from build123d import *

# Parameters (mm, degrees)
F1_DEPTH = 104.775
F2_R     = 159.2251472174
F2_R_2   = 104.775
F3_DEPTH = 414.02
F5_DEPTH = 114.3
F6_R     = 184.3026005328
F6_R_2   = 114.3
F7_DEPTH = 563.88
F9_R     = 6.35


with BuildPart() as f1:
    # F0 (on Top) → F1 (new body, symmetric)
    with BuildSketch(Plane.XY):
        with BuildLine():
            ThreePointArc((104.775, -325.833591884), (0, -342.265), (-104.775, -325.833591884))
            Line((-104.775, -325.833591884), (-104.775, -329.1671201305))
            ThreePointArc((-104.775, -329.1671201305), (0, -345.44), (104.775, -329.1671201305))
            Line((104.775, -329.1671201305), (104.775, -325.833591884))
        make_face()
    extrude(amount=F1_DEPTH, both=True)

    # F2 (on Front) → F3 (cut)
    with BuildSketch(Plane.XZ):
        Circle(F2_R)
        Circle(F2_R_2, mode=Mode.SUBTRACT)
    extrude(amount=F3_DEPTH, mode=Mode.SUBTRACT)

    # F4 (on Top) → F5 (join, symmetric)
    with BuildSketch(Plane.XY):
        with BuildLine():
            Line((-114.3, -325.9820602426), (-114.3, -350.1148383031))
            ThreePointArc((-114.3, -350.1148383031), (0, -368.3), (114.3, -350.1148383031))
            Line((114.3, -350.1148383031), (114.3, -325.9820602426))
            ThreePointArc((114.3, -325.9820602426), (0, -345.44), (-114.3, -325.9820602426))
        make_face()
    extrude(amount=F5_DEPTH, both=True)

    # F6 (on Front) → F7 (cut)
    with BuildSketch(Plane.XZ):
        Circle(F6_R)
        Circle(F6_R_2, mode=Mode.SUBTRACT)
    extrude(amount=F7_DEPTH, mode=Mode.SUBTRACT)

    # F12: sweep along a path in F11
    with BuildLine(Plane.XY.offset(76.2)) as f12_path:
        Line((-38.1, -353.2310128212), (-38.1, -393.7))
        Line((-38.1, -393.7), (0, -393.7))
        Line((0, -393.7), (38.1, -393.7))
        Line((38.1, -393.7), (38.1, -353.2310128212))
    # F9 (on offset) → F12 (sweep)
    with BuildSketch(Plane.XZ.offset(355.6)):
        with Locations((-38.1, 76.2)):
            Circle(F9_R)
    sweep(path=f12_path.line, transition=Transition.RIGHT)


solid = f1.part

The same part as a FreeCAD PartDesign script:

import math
import FreeCAD as App
import Part
import Sketcher
Q = App.Units.Quantity

doc = App.newDocument("Part")
body = doc.addObject("PartDesign::Body", "Body")

# Sketch on XY plane
sketch1 = body.newObject("Sketcher::SketchObject", "Sketch")
sketch1.AttachmentSupport = (doc.getObject("XY_Plane"), [""])
sketch1.MapMode = "FlatFace"
sketch1.addGeometry([
    Part.ArcOfCircle(Part.Circle(App.Vector(0, 0, 0), App.Vector(0, 0, 1), 342.3), math.radians(-108), math.radians(-72)),
    Part.LineSegment(App.Vector(-104.8, -325.8, 0), App.Vector(-104.8, -329.2, 0)),
    Part.ArcOfCircle(Part.Circle(App.Vector(0, 0, 0), App.Vector(0, 0, 1), 345.4), math.radians(-108), math.radians(-72)),
    Part.LineSegment(App.Vector(104.8, -329.2, 0), App.Vector(104.8, -325.8, 0)),
], False)
sketch1.addConstraint([
    Sketcher.Constraint("Coincident", 0, 1, 1, 1),
    Sketcher.Constraint("Coincident", 1, 2, 2, 1),
    Sketcher.Constraint("Coincident", 2, 2, 3, 1),
    Sketcher.Constraint("Coincident", 3, 2, 0, 2),
    Sketcher.Constraint("Vertical", 1),
    Sketcher.Constraint("Vertical", 3),
    Sketcher.Constraint("Coincident", 0, 3, -1, 1),
    Sketcher.Constraint("Coincident", 2, 3, -1, 1),
    Sketcher.Constraint("Horizontal", 1, 2, 2, 2),
    Sketcher.Constraint("Radius", 2, Q("13.6 in")),
    Sketcher.Constraint("Radius", 0, Q("13.475 in")),
    Sketcher.Constraint("DistanceX", 1, 2, 2, 2, Q("8.25 in")),
])
pad1 = body.newObject("PartDesign::Pad", "Pad")
pad1.Profile = sketch1
pad1.Length = Q("8.25 in")
pad1.Midplane = True

# Sketch on XZ plane
sketch2 = body.newObject("Sketcher::SketchObject", "Sketch001")
sketch2.AttachmentSupport = (doc.getObject("XZ_Plane"), [""])
sketch2.MapMode = "FlatFace"
sketch2.addGeometry([
    Part.Circle(App.Vector(0, 0, 0), App.Vector(0, 0, 1), 159),
    Part.Circle(App.Vector(0, 0, 0), App.Vector(0, 0, 1), 105),
], False)
sketch2.addConstraint([
    Sketcher.Constraint("Coincident", 0, 3, -1, 1),
    Sketcher.Constraint("Coincident", 1, 3, -1, 1),
    Sketcher.Constraint("Diameter", 1, Q("8.25 in")),
    Sketcher.Constraint("Diameter", 0, 318.450294),
])
pocket1 = body.newObject("PartDesign::Pocket", "Pocket")
pocket1.Profile = sketch2
pocket1.Length = Q("16.3 in")
pocket1.Reversed = True

# Sketch on XY plane
sketch3 = body.newObject("Sketcher::SketchObject", "Sketch002")
sketch3.AttachmentSupport = (doc.getObject("XY_Plane"), [""])
sketch3.MapMode = "FlatFace"
sketch3.addGeometry([
    Part.LineSegment(App.Vector(-114, -326, 0), App.Vector(-114, -350, 0)),
    Part.ArcOfCircle(Part.Circle(App.Vector(0, 0, 0), App.Vector(0, 0, 1), 368), math.radians(-108), math.radians(-72)),
    Part.LineSegment(App.Vector(114, -350, 0), App.Vector(114, -326, 0)),
    Part.ArcOfCircle(Part.Circle(App.Vector(0, 0, 0), App.Vector(0, 0, 1), 345), math.radians(-109), math.radians(-71)),
], False)
sketch3.addConstraint([
    Sketcher.Constraint("Coincident", 0, 2, 1, 1),
    Sketcher.Constraint("Coincident", 1, 2, 2, 1),
    Sketcher.Constraint("Coincident", 2, 2, 3, 2),
    Sketcher.Constraint("Coincident", 3, 1, 0, 1),
    Sketcher.Constraint("Vertical", 0),
    Sketcher.Constraint("Vertical", 2),
    Sketcher.Constraint("Coincident", 1, 3, -1, 1),
    Sketcher.Constraint("Coincident", 3, 3, -1, 1),
    Sketcher.Constraint("Horizontal", 0, 2, 1, 2),
    Sketcher.Constraint("Radius", 1, Q("14.5 in")),
    Sketcher.Constraint("Radius", 3, Q("13.6 in")),
    Sketcher.Constraint("DistanceX", 0, 2, 1, 2, Q("9 in")),
])
pad2 = body.newObject("PartDesign::Pad", "Pad001")
pad2.Profile = sketch3
pad2.Length = Q("9 in")
pad2.Midplane = True

# Sketch on XZ plane
sketch4 = body.newObject("Sketcher::SketchObject", "Sketch003")
sketch4.AttachmentSupport = (doc.getObject("XZ_Plane"), [""])
sketch4.MapMode = "FlatFace"
sketch4.addGeometry([
    Part.Circle(App.Vector(0, 0, 0), App.Vector(0, 0, 1), 184),
    Part.Circle(App.Vector(0, 0, 0), App.Vector(0, 0, 1), 114),
], False)
sketch4.addConstraint([
    Sketcher.Constraint("Coincident", 0, 3, -1, 1),
    Sketcher.Constraint("Coincident", 1, 3, -1, 1),
    Sketcher.Constraint("Diameter", 1, Q("9 in")),
    Sketcher.Constraint("Diameter", 0, 368.605201),
])
pocket2 = body.newObject("PartDesign::Pocket", "Pocket001")
pocket2.Profile = sketch4
pocket2.Length = Q("22.2 in")
pocket2.Reversed = True

# Sketch on XZ plane
sketch5 = body.newObject("Sketcher::SketchObject", "Sketch004")
sketch5.AttachmentSupport = (doc.getObject("XZ_Plane"), [""])
sketch5.MapMode = "FlatFace"
sketch5.AttachmentOffset = App.Placement(App.Vector(0, 0, 14 * 25.4), App.Rotation())
sketch5.addGeometry(Part.Circle(App.Vector(-38, 76, 0), App.Vector(0, 0, 1), 6), False)
sketch5.addConstraint([
    Sketcher.Constraint("Diameter", 0, Q("0.5 in")),
    Sketcher.Constraint("DistanceY", -1, 1, 0, 3, Q("3 in")),
    Sketcher.Constraint("DistanceX", 0, 3, -1, 1, Q("1.5 in")),
])

# Sketch on XY plane
sketch6 = body.newObject("Sketcher::SketchObject", "Sketch005")
sketch6.AttachmentSupport = (doc.getObject("XY_Plane"), [""])
sketch6.MapMode = "FlatFace"
sketch6.AttachmentOffset = App.Placement(App.Vector(0, 0, 3 * 25.4), App.Rotation())
sketch6.addGeometry([
    Part.LineSegment(App.Vector(-38, -353, 0), App.Vector(-38, -394, 0)),
    Part.LineSegment(App.Vector(-38, -394, 0), App.Vector(38, -394, 0)),
    Part.LineSegment(App.Vector(38, -394, 0), App.Vector(38, -353, 0)),
], False)
sketch6.addConstraint([
    Sketcher.Constraint("Coincident", 0, 2, 1, 1),
    Sketcher.Constraint("Coincident", 1, 2, 2, 1),
    Sketcher.Constraint("Vertical", 0),
    Sketcher.Constraint("Horizontal", 1),
    Sketcher.Constraint("Vertical", 2),
    Sketcher.Constraint("Symmetric", 0, 1, 2, 2, -2),
    Sketcher.Constraint("DistanceX", 1, 1, 1, 2, Q("3 in")),
    Sketcher.Constraint("DistanceY", 0, 2, -1, 1, Q("15.5 in")),
    Sketcher.Constraint("DistanceY", 0, 2, 0, 1, 40.468987),
])
doc.recompute()

additivepipe = body.newObject("PartDesign::AdditivePipe", "AdditivePipe")
additivepipe.Profile = sketch5
additivepipe.Spine = (sketch6, ["Edge1", "Edge2", "Edge3"])
additivepipe.Transition = "Right corner"

doc.recompute()
